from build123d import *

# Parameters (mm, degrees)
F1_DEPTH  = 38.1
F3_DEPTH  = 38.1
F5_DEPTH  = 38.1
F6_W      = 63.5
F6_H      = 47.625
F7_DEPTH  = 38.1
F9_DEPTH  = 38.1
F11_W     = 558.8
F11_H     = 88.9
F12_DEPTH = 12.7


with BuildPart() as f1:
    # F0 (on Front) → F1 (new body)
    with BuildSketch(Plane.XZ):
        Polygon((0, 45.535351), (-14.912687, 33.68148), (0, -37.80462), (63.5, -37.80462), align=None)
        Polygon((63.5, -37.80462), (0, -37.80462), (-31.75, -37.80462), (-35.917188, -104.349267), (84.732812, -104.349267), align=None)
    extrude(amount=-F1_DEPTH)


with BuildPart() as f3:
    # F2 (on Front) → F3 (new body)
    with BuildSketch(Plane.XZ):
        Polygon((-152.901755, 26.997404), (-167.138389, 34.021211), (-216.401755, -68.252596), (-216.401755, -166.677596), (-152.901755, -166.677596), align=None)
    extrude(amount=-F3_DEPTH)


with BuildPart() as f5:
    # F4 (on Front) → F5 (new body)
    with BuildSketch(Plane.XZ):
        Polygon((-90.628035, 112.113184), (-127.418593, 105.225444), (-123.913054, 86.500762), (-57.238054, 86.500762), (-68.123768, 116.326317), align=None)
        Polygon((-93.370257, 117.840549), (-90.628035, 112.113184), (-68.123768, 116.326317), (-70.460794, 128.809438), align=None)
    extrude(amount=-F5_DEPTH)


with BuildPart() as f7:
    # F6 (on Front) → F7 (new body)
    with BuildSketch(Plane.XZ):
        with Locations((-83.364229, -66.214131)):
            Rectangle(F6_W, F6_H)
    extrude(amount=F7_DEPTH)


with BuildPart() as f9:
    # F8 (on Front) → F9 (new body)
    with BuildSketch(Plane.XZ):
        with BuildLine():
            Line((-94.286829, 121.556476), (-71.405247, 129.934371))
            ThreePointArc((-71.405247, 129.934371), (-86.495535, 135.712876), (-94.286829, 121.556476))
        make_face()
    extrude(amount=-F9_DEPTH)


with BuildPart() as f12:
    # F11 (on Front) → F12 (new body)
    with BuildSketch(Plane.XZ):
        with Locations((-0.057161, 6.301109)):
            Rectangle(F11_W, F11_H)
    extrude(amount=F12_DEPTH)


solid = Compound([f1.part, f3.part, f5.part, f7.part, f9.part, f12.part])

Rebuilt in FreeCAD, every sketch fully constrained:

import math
import FreeCAD as App
import Part
import Sketcher
Q = App.Units.Quantity


def add_polygon(sketch, points):
    """Adds a closed chain of lines whose ends are joined by coincident constraints."""
    first, n = sketch.GeometryCount, len(points)
    for a, b in zip(points, points[1:] + points[:1]):
        sketch.addGeometry(Part.LineSegment(App.Vector(*a, 0), App.Vector(*b, 0)), False)
    for i in range(n):
        sketch.addConstraint(Sketcher.Constraint("Coincident", first + i, 2, first + (i + 1) % n, 1))

doc = App.newDocument("Part")
body = doc.addObject("PartDesign::Body", "Body")

sketch1 = body.newObject("Sketcher::SketchObject", "Sketch")
sketch1.AttachmentSupport = (doc.getObject("XZ_Plane"), [""])
sketch1.MapMode = "FlatFace"
add_polygon(sketch1, [(0, 46), (-15, 34), (0, -38), (-32, -38), (-36, -104), (85, -104), (64, -38)])
sketch1.addConstraint([
    Sketcher.Constraint("Horizontal", 2),
    Sketcher.Constraint("Horizontal", 4),
    Sketcher.Constraint("PointOnObject", 1, 2, -2),
    Sketcher.Constraint("PointOnObject", 6, 2, -2),
    Sketcher.Constraint("Horizontal", 2, 2, 5, 2),
    Sketcher.Constraint("DistanceX", 2, 2, 2, 1, Q("1.25 in")),
    Sketcher.Constraint("DistanceX", 4, 1, 4, 2, Q("4.75 in")),
    Sketcher.Constraint("DistanceX", -1, 1, 5, 2, Q("2.5 in")),
    Sketcher.Constraint("Distance", 0, Q("0.75 in")),
    Sketcher.Constraint("Distance", 5, Q("2.75 in")),
    Sketcher.Constraint("Distance", 1, Q("2.875 in")),
    Sketcher.Constraint("Distance", 3, Q("2.625 in")),
    Sketcher.Constraint("Distance", 6, Q("4.125 in")),
    Sketcher.Constraint("DistanceY", -1, 1, 0, 2, Q("33.68148 mm")),
])
pad1 = body.newObject("PartDesign::Pad", "Pad")
pad1.Profile = sketch1
pad1.Length = Q("1.5 in")
pad1.Reversed = True
body2 = doc.addObject("PartDesign::Body", "Body001")

sketch2 = body2.newObject("Sketcher::SketchObject", "Sketch001")
sketch2.AttachmentSupport = (doc.getObject("XZ_Plane001"), [""])
sketch2.MapMode = "FlatFace"
add_polygon(sketch2, [(-153, 27), (-167, 34), (-216, -68), (-216, -167), (-153, -167)])
sketch2.addConstraint([
    Sketcher.Constraint("Vertical", 2),
    Sketcher.Constraint("Horizontal", 3),
    Sketcher.Constraint("Vertical", 4),
    Sketcher.Constraint("DistanceX", 3, 1, 3, 2, Q("2.5 in")),
    Sketcher.Constraint("DistanceY", 2, 2, 2, 1, Q("3.875 in")),
    Sketcher.Constraint("DistanceY", 4, 1, 4, 2, Q("7.625 in")),
    Sketcher.Constraint("Distance", 0, Q("0.625 in")),
    Sketcher.Constraint("Distance", 1, Q("113.52009 mm")),
    Sketcher.Constraint("DistanceX", 0, 2, -1, 1, Q("167.138389 mm")),
    Sketcher.Constraint("DistanceY", -1, 1, 0, 2, Q("34.021211 mm")),
])
pad2 = body2.newObject("PartDesign::Pad", "Pad001")
pad2.Profile = sketch2
pad2.Length = Q("1.5 in")
pad2.Reversed = True
body3 = doc.addObject("PartDesign::Body", "Body002")

sketch3 = body3.newObject("Sketcher::SketchObject", "Sketch002")
sketch3.AttachmentSupport = (doc.getObject("XZ_Plane002"), [""])
sketch3.MapMode = "FlatFace"
add_polygon(sketch3, [(-91, 112), (-127, 105), (-124, 87), (-57, 87), (-68, 116), (-70, 129), (-93, 118)])
sketch3.addConstraint([
    Sketcher.Constraint("Horizontal", 2),
    Sketcher.Constraint("Perpendicular", 0, 1),
    Sketcher.Constraint("Parallel", 1, 4),
    Sketcher.Constraint("Perpendicular", 5, 6),
    Sketcher.Constraint("Distance", 5, Q("1 in")),
    Sketcher.Constraint("Distance", 4, Q("0.5 in")),
    Sketcher.Constraint("Distance", 1, Q("0.75 in")),
    Sketcher.Constraint("Distance", 3, Q("1.25 in")),
    Sketcher.Constraint("Distance", 6, Q("0.25 in")),
    Sketcher.Constraint("DistanceX", 2, 1, 2, 2, Q("2.625 in")),
    Sketcher.Constraint("DistanceX", 0, 2, 4, 2, Q("56.957799 mm")),
    Sketcher.Constraint("Distance", 0, Q("37.429749 mm")),
    Sketcher.Constraint("DistanceY", -1, 1, 1, 2, Q("86.500762 mm")),
    Sketcher.Constraint("DistanceX", 3, 2, -1, 1, Q("68.123768 mm")),
])
pad3 = body3.newObject("PartDesign::Pad", "Pad002")
pad3.Profile = sketch3
pad3.Length = Q("1.5 in")
pad3.Reversed = True
body4 = doc.addObject("PartDesign::Body", "Body003")

sketch4 = body4.newObject("Sketcher::SketchObject", "Sketch003")
sketch4.AttachmentSupport = (doc.getObject("XZ_Plane003"), [""])
sketch4.MapMode = "FlatFace"
add_polygon(sketch4, [(-115, -42), (-115, -90), (-52, -90), (-52, -42)])
sketch4.addConstraint([
    Sketcher.Constraint("Vertical", 0),
    Sketcher.Constraint("Horizontal", 1),
    Sketcher.Constraint("Vertical", 2),
    Sketcher.Constraint("Horizontal", 3),
    Sketcher.Constraint("DistanceX", 1, 1, 1, 2, Q("2.5 in")),
    Sketcher.Constraint("DistanceY", 0, 2, 0, 1, Q("1.875 in")),
    Sketcher.Constraint("DistanceX", 0, 2, -1, 1, Q("115.114229 mm")),
    Sketcher.Constraint("DistanceY", 0, 2, -1, 1, Q("90.026631 mm")),
])
pad4 = body4.newObject("PartDesign::Pad", "Pad003")
pad4.Profile = sketch4
pad4.Length = Q("1.5 in")
body5 = doc.addObject("PartDesign::Body", "Body004")

sketch5 = body5.newObject("Sketcher::SketchObject", "Sketch004")
sketch5.AttachmentSupport = (doc.getObject("XZ_Plane004"), [""])
sketch5.MapMode = "FlatFace"
sketch5.addGeometry([
    Part.LineSegment(App.Vector(-94, 122, 0), App.Vector(-71, 130, 0)),
    Part.ArcOfCircle(Part.Circle(App.Vector(-82, 124, 0), App.Vector(0, 0, 1), 12), math.radians(28), math.radians(192)),
], False)
sketch5.addConstraint([
    Sketcher.Constraint("Coincident", 0, 1, 1, 2),
    Sketcher.Constraint("Coincident", 1, 1, 0, 2),
    Sketcher.Constraint("Radius", 1, Q("12.299514 mm")),
    Sketcher.Constraint("DistanceX", 1, 3, -1, 1, Q("82.266718 mm")),
    Sketcher.Constraint("DistanceX", 0, 1, -1, 1, Q("94.286829 mm")),
    Sketcher.Constraint("DistanceY", -1, 1, 1, 1, Q("129.934371 mm")),
    Sketcher.Constraint("DistanceX", 1, 3, 1, 1, Q("10.861471 mm")),
])
pad5 = body5.newObject("PartDesign::Pad", "Pad004")
pad5.Profile = sketch5
pad5.Length = Q("1.5 in")
pad5.Reversed = True
body6 = doc.addObject("PartDesign::Body", "Body005")

sketch6 = body6.newObject("Sketcher::SketchObject", "Sketch005")
sketch6.AttachmentSupport = (doc.getObject("XZ_Plane005"), [""])
sketch6.MapMode = "FlatFace"
add_polygon(sketch6, [(-279, 51), (-279, -38), (279, -38), (279, 51)])
sketch6.addConstraint([
    Sketcher.Constraint("Vertical", 0),
    Sketcher.Constraint("Horizontal", 1),
    Sketcher.Constraint("Vertical", 2),
    Sketcher.Constraint("Horizontal", 3),
    Sketcher.Constraint("DistanceX", 1, 1, 1, 2, Q("22 in")),
    Sketcher.Constraint("DistanceY", 0, 2, 0, 1, Q("3.5 in")),
    Sketcher.Constraint("DistanceX", 0, 2, -1, 1, Q("279.457161 mm")),
    Sketcher.Constraint("DistanceY", 0, 2, -1, 1, Q("38.148891 mm")),
])
pad6 = body6.newObject("PartDesign::Pad", "Pad005")
pad6.Profile = sketch6
pad6.Length = Q("0.5 in")

doc.recompute()
